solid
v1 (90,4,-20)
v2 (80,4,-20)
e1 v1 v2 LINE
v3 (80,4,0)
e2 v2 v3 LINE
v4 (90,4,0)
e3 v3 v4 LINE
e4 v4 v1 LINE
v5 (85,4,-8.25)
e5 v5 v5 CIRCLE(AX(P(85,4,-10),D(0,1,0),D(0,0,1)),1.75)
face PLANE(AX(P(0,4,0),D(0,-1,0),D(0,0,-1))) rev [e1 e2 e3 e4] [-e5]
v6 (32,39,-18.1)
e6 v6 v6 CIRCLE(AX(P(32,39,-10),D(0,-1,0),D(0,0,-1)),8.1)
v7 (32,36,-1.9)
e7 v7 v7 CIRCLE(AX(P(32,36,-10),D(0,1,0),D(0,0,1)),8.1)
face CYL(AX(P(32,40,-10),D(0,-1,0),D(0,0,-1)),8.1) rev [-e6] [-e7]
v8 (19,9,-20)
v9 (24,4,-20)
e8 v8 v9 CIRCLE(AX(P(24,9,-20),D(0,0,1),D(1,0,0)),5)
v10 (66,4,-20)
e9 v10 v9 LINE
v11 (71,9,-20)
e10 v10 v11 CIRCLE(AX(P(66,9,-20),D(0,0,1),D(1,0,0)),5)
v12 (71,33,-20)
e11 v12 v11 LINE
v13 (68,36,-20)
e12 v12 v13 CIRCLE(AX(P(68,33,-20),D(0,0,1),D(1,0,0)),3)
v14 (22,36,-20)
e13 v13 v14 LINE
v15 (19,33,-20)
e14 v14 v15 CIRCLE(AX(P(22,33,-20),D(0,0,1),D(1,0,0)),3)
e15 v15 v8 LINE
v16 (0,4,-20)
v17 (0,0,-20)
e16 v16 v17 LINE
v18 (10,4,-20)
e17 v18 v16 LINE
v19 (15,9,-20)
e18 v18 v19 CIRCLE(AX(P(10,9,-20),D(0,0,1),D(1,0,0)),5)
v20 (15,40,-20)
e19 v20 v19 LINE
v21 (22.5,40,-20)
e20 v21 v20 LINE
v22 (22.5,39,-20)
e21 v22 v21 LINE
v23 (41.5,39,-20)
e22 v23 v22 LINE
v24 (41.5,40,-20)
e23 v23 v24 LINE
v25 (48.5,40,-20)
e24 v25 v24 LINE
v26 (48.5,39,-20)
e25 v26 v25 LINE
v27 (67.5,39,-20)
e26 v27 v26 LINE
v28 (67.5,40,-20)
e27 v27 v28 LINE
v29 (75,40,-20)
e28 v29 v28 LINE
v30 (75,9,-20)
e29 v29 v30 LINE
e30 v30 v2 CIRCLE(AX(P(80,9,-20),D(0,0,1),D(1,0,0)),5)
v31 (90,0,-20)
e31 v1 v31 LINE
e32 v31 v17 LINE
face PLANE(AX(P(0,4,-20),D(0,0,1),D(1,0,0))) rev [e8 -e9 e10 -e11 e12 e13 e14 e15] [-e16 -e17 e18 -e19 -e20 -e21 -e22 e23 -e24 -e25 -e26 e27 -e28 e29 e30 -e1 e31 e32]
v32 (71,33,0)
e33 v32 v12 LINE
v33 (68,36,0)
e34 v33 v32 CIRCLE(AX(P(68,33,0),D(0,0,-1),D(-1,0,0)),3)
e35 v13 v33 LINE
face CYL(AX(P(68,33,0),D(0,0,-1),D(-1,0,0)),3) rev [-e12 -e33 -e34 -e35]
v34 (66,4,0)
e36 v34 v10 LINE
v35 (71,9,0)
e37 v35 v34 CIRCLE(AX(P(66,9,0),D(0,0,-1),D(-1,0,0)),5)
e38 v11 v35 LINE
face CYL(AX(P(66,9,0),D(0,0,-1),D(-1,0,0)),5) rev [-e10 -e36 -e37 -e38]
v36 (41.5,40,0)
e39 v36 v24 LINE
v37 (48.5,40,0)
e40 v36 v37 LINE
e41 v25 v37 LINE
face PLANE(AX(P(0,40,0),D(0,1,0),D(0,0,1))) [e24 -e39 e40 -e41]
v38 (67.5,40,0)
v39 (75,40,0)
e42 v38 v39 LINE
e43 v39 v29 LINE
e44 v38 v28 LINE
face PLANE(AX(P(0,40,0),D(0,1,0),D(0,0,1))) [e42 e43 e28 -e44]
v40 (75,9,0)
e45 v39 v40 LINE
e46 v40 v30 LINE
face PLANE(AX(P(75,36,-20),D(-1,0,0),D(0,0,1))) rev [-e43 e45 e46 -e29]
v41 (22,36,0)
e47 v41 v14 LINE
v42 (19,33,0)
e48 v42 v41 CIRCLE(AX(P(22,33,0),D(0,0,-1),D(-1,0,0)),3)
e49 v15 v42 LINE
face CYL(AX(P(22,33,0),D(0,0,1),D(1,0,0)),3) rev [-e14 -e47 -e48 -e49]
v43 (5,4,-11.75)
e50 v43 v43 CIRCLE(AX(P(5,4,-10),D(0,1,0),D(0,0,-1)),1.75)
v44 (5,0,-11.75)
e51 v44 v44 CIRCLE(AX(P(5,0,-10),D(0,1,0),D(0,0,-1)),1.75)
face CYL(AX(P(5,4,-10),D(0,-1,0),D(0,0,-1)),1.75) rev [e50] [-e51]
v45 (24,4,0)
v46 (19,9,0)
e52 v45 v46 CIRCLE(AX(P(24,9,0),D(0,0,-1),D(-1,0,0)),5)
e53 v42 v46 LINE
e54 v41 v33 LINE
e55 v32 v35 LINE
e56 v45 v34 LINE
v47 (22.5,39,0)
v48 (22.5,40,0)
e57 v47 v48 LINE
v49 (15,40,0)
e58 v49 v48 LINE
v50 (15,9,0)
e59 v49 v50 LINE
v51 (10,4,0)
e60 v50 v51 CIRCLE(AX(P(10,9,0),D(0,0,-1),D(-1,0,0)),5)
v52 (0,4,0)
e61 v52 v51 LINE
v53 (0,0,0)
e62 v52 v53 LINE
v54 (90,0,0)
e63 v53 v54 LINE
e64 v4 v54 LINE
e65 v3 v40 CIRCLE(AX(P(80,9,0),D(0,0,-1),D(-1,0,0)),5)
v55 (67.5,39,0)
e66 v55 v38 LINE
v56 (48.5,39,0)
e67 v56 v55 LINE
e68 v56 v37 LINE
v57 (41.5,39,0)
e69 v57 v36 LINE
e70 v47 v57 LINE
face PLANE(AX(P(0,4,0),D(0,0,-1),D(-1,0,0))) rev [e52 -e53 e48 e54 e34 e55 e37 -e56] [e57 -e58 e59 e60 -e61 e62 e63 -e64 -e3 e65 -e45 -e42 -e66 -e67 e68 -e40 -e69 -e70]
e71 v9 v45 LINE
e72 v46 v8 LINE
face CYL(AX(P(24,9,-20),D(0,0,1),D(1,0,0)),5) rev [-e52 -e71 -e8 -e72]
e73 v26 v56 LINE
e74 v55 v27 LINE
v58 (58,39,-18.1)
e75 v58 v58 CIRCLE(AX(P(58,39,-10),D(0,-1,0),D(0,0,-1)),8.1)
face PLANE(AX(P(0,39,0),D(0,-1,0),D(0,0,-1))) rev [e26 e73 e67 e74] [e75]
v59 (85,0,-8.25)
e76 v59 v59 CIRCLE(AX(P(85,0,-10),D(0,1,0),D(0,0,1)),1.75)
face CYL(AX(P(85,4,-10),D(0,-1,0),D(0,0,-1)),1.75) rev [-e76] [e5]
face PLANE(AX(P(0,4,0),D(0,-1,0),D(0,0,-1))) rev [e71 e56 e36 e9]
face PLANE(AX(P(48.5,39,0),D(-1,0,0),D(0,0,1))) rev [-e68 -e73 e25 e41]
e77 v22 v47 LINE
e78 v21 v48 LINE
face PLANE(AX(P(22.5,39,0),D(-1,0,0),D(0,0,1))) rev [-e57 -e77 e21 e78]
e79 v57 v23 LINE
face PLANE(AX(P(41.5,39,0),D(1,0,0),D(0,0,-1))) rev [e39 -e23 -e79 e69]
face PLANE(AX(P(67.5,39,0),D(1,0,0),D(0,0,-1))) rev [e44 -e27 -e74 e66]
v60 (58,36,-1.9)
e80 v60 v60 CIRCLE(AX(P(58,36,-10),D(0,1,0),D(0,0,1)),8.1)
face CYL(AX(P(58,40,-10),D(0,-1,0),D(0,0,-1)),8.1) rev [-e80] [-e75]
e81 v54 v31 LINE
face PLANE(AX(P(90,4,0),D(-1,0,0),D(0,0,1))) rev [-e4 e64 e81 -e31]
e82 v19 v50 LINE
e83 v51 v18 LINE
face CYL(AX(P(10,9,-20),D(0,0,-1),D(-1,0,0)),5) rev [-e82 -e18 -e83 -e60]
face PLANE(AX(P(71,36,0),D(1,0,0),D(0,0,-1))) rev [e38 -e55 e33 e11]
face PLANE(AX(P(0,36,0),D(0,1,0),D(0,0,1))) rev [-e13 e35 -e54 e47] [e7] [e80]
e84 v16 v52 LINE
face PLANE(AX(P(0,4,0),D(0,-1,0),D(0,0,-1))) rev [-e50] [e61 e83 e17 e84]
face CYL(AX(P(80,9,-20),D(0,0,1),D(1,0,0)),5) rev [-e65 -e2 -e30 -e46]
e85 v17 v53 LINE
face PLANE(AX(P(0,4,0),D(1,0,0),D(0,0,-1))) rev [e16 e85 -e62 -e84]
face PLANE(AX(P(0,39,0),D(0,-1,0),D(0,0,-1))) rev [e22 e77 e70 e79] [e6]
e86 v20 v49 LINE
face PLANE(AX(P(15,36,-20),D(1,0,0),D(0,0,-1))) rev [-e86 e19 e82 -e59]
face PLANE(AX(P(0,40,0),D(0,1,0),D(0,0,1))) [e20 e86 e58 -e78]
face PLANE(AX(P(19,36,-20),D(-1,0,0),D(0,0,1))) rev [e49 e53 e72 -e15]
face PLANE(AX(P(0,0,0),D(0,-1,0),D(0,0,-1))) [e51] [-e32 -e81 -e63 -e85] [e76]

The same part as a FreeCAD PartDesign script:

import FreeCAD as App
import Part
import Sketcher
from FreeCAD import Vector


def edges_at(feature, points):
    """Names of the edges that pass closest to the given points."""
    edges = feature.Shape.Edges
    near = lambda p: min(range(len(edges)), key=lambda i: edges[i].distToShape(Part.Vertex(*p))[0])
    return sorted({f"Edge{near(p) + 1}" for p in points})

doc = App.newDocument("Part")
body = doc.addObject("PartDesign::Body", "Body")

# Sketch on XZ plane
sketch1 = body.newObject("Sketcher::SketchObject", "Sketch")
sketch1.AttachmentSupport = (doc.getObject("XZ_Plane"), [""])
sketch1.MapMode = "FlatFace"
sketch1.addGeometry([
    Part.LineSegment(Vector(0, -20, 0), Vector(0, 0, 0)),  # 0
    Part.LineSegment(Vector(0, 0, 0), Vector(90, 0, 0)),  # 1
    Part.LineSegment(Vector(90, 0, 0), Vector(90, -20, 0)),  # 2
    Part.LineSegment(Vector(90, -20, 0), Vector(0, -20, 0)),  # 3
    Part.Circle(Vector(5, -10, 0), Vector(0, 0, 1), 1.75),  # 4
    Part.Circle(Vector(85, -10, 0), Vector(0, 0, 1), 1.75),  # 5
], False)
sketch1.addConstraint([
    Sketcher.Constraint("Coincident", 0, 2, 1, 1),
    Sketcher.Constraint("Coincident", 1, 2, 2, 1),
    Sketcher.Constraint("Coincident", 2, 2, 3, 1),
    Sketcher.Constraint("Coincident", 3, 2, 0, 1),
    Sketcher.Constraint("Vertical", 0),
    Sketcher.Constraint("Horizontal", 1),
    Sketcher.Constraint("Vertical", 2),
    Sketcher.Constraint("Horizontal", 3),
    Sketcher.Constraint("Coincident", 0, 2, -1, 1),
    Sketcher.Constraint("Equal", 4, 5),
    Sketcher.Constraint("Horizontal", 4, 3, 5, 3),
    Sketcher.Constraint("Diameter", 4, 3.5),
    Sketcher.Constraint("DistanceX", 1, 1, 1, 2, 90.0),
    Sketcher.Constraint("DistanceY", 0, 1, 0, 2, 20.0),
    Sketcher.Constraint("DistanceX", -1, 1, 4, 3, 5.0),
    Sketcher.Constraint("DistanceY", 4, 3, -1, 1, 10.0),
    Sketcher.Constraint("DistanceX", -1, 1, 5, 3, 85.0),
])
pad1 = body.newObject("PartDesign::Pad", "Pad")
pad1.Profile = sketch1
pad1.Length = 4
pad1.Reversed = True

# Sketch on XZ plane
sketch2 = body.newObject("Sketcher::SketchObject", "Sketch001")
sketch2.AttachmentSupport = (doc.getObject("XZ_Plane"), [""])
sketch2.MapMode = "FlatFace"
sketch2.AttachmentOffset = App.Placement(Vector(0, 0, -4), App.Rotation())
sketch2.addGeometry([
    Part.LineSegment(Vector(15, -20, 0), Vector(15, 0, 0)),  # 0
    Part.LineSegment(Vector(15, 0, 0), Vector(19, 0, 0)),  # 1
    Part.LineSegment(Vector(19, 0, 0), Vector(19, -20, 0)),  # 2
    Part.LineSegment(Vector(19, -20, 0), Vector(15, -20, 0)),  # 3
    Part.LineSegment(Vector(71, -20, 0), Vector(71, 0, 0)),  # 4
    Part.LineSegment(Vector(71, 0, 0), Vector(75, 0, 0)),  # 5
    Part.LineSegment(Vector(75, 0, 0), Vector(75, -20, 0)),  # 6
    Part.LineSegment(Vector(75, -20, 0), Vector(71, -20, 0)),  # 7
], False)
sketch2.addConstraint([
    Sketcher.Constraint("Coincident", 0, 2, 1, 1),
    Sketcher.Constraint("Coincident", 1, 2, 2, 1),
    Sketcher.Constraint("Coincident", 2, 2, 3, 1),
    Sketcher.Constraint("Coincident", 3, 2, 0, 1),
    Sketcher.Constraint("Coincident", 4, 2, 5, 1),
    Sketcher.Constraint("Coincident", 5, 2, 6, 1),
    Sketcher.Constraint("Coincident", 6, 2, 7, 1),
    Sketcher.Constraint("Coincident", 7, 2, 4, 1),
    Sketcher.Constraint("Vertical", 0),
    Sketcher.Constraint("Horizontal", 1),
    Sketcher.Constraint("Vertical", 2),
    Sketcher.Constraint("Horizontal", 3),
    Sketcher.Constraint("Vertical", 4),
    Sketcher.Constraint("Horizontal", 5),
    Sketcher.Constraint("Vertical", 6),
    Sketcher.Constraint("Horizontal", 7),
    Sketcher.Constraint("PointOnObject", 0, 2, -1),
    Sketcher.Constraint("PointOnObject", 4, 2, -1),
    Sketcher.Constraint("Horizontal", 3, 2, 6, 2),
    Sketcher.Constraint("Equal", 3, 5),
    Sketcher.Constraint("DistanceX", 1, 1, 1, 2, 4.0),
    Sketcher.Constraint("DistanceY", 0, 1, 0, 2, 20.0),
    Sketcher.Constraint("DistanceX", -1, 1, 0, 2, 15.0),
    Sketcher.Constraint("DistanceX", -1, 1, 4, 2, 71.0),
])
pad2 = body.newObject("PartDesign::Pad", "Pad001")
pad2.Profile = sketch2
pad2.Length = 32
pad2.Reversed = True

# Sketch on XZ plane
sketch3 = body.newObject("Sketcher::SketchObject", "Sketch002")
sketch3.AttachmentSupport = (doc.getObject("XZ_Plane"), [""])
sketch3.MapMode = "FlatFace"
sketch3.AttachmentOffset = App.Placement(Vector(0, 0, -36), App.Rotation())
sketch3.addGeometry([
    Part.LineSegment(Vector(15, -20, 0), Vector(15, 0, 0)),  # 0
    Part.LineSegment(Vector(15, 0, 0), Vector(75, 0, 0)),  # 1
    Part.LineSegment(Vector(75, 0, 0), Vector(75, -20, 0)),  # 2
    Part.LineSegment(Vector(75, -20, 0), Vector(15, -20, 0)),  # 3
    Part.Circle(Vector(32, -10, 0), Vector(0, 0, 1), 8.1),  # 4
    Part.Circle(Vector(58, -10, 0), Vector(0, 0, 1), 8.1),  # 5
], False)
sketch3.addConstraint([
    Sketcher.Constraint("Coincident", 0, 2, 1, 1),
    Sketcher.Constraint("Coincident", 1, 2, 2, 1),
    Sketcher.Constraint("Coincident", 2, 2, 3, 1),
    Sketcher.Constraint("Coincident", 3, 2, 0, 1),
    Sketcher.Constraint("Vertical", 0),
    Sketcher.Constraint("Horizontal", 1),
    Sketcher.Constraint("Vertical", 2),
    Sketcher.Constraint("Horizontal", 3),
    Sketcher.Constraint("Equal", 4, 5),
    Sketcher.Constraint("PointOnObject", 0, 2, -1),
    Sketcher.Constraint("Horizontal", 4, 3, 5, 3),
    Sketcher.Constraint("Diameter", 4, 16.2),
    Sketcher.Constraint("DistanceX", 1, 1, 1, 2, 60.0),
    Sketcher.Constraint("DistanceY", 0, 1, 0, 2, 20.0),
    Sketcher.Constraint("DistanceX", -1, 1, 4, 3, 32.0),
    Sketcher.Constraint("DistanceY", 4, 3, -1, 1, 10.0),
    Sketcher.Constraint("DistanceX", -1, 1, 5, 3, 58.0),
    Sketcher.Constraint("DistanceX", -1, 1, 0, 2, 15.0),
])
pad3 = body.newObject("PartDesign::Pad", "Pad002")
pad3.Profile = sketch3
pad3.Length = 4
pad3.Reversed = True
doc.recompute()

fillet = body.newObject("PartDesign::Fillet", "Fillet")
fillet.Base = (pad3, edges_at(pad3, [
    (15, 4, -10),
    (19, 4, -10),
    (75, 4, -10),
    (71, 4, -10),
]))
fillet.Radius = 5
doc.recompute()

fillet2 = body.newObject("PartDesign::Fillet", "Fillet001")
fillet2.Base = (fillet, edges_at(fillet, [(19, 36, -10), (71, 36, -10)]))
fillet2.Radius = 3

# Sketch on XZ plane
sketch4 = body.newObject("Sketcher::SketchObject", "Sketch003")
sketch4.AttachmentSupport = (doc.getObject("XZ_Plane"), [""])
sketch4.MapMode = "FlatFace"
sketch4.AttachmentOffset = App.Placement(Vector(0, 0, -40), App.Rotation())
sketch4.addGeometry([
    Part.LineSegment(Vector(22.5, -20, 0), Vector(22.5, 0, 0)),  # 0
    Part.LineSegment(Vector(22.5, 0, 0), Vector(41.5, 0, 0)),  # 1
    Part.LineSegment(Vector(41.5, 0, 0), Vector(41.5, -20, 0)),  # 2
    Part.LineSegment(Vector(41.5, -20, 0), Vector(22.5, -20, 0)),  # 3
    Part.LineSegment(Vector(48.5, -20, 0), Vector(48.5, 0, 0)),  # 4
    Part.LineSegment(Vector(48.5, 0, 0), Vector(67.5, 0, 0)),  # 5
    Part.LineSegment(Vector(67.5, 0, 0), Vector(67.5, -20, 0)),  # 6
    Part.LineSegment(Vector(67.5, -20, 0), Vector(48.5, -20, 0)),  # 7
], False)
sketch4.addConstraint([
    Sketcher.Constraint("Coincident", 0, 2, 1, 1),
    Sketcher.Constraint("Coincident", 1, 2, 2, 1),
    Sketcher.Constraint("Coincident", 2, 2, 3, 1),
    Sketcher.Constraint("Coincident", 3, 2, 0, 1),
    Sketcher.Constraint("Coincident", 4, 2, 5, 1),
    Sketcher.Constraint("Coincident", 5, 2, 6, 1),
    Sketcher.Constraint("Coincident", 6, 2, 7, 1),
    Sketcher.Constraint("Coincident", 7, 2, 4, 1),
    Sketcher.Constraint("Vertical", 0),
    Sketcher.Constraint("Horizontal", 1),
    Sketcher.Constraint("Vertical", 2),
    Sketcher.Constraint("Horizontal", 3),
    Sketcher.Constraint("Vertical", 4),
    Sketcher.Constraint("Horizontal", 5),
    Sketcher.Constraint("Vertical", 6),
    Sketcher.Constraint("Horizontal", 7),
    Sketcher.Constraint("PointOnObject", 0, 2, -1),
    Sketcher.Constraint("PointOnObject", 4, 2, -1),
    Sketcher.Constraint("Horizontal", 3, 2, 6, 2),
    Sketcher.Constraint("Equal", 3, 5),
    Sketcher.Constraint("DistanceX", 1, 1, 1, 2, 19.0),
    Sketcher.Constraint("DistanceY", 0, 1, 0, 2, 20.0),
    Sketcher.Constraint("DistanceX", 1, 2, 4, 2, 7.0),
    Sketcher.Constraint("DistanceX", -1, 1, 0, 2, 22.5),
])
pocket1 = body.newObject("PartDesign::Pocket", "Pocket")
pocket1.Profile = sketch4
pocket1.Length = 1
pocket1.Reversed = True

doc.recompute()
